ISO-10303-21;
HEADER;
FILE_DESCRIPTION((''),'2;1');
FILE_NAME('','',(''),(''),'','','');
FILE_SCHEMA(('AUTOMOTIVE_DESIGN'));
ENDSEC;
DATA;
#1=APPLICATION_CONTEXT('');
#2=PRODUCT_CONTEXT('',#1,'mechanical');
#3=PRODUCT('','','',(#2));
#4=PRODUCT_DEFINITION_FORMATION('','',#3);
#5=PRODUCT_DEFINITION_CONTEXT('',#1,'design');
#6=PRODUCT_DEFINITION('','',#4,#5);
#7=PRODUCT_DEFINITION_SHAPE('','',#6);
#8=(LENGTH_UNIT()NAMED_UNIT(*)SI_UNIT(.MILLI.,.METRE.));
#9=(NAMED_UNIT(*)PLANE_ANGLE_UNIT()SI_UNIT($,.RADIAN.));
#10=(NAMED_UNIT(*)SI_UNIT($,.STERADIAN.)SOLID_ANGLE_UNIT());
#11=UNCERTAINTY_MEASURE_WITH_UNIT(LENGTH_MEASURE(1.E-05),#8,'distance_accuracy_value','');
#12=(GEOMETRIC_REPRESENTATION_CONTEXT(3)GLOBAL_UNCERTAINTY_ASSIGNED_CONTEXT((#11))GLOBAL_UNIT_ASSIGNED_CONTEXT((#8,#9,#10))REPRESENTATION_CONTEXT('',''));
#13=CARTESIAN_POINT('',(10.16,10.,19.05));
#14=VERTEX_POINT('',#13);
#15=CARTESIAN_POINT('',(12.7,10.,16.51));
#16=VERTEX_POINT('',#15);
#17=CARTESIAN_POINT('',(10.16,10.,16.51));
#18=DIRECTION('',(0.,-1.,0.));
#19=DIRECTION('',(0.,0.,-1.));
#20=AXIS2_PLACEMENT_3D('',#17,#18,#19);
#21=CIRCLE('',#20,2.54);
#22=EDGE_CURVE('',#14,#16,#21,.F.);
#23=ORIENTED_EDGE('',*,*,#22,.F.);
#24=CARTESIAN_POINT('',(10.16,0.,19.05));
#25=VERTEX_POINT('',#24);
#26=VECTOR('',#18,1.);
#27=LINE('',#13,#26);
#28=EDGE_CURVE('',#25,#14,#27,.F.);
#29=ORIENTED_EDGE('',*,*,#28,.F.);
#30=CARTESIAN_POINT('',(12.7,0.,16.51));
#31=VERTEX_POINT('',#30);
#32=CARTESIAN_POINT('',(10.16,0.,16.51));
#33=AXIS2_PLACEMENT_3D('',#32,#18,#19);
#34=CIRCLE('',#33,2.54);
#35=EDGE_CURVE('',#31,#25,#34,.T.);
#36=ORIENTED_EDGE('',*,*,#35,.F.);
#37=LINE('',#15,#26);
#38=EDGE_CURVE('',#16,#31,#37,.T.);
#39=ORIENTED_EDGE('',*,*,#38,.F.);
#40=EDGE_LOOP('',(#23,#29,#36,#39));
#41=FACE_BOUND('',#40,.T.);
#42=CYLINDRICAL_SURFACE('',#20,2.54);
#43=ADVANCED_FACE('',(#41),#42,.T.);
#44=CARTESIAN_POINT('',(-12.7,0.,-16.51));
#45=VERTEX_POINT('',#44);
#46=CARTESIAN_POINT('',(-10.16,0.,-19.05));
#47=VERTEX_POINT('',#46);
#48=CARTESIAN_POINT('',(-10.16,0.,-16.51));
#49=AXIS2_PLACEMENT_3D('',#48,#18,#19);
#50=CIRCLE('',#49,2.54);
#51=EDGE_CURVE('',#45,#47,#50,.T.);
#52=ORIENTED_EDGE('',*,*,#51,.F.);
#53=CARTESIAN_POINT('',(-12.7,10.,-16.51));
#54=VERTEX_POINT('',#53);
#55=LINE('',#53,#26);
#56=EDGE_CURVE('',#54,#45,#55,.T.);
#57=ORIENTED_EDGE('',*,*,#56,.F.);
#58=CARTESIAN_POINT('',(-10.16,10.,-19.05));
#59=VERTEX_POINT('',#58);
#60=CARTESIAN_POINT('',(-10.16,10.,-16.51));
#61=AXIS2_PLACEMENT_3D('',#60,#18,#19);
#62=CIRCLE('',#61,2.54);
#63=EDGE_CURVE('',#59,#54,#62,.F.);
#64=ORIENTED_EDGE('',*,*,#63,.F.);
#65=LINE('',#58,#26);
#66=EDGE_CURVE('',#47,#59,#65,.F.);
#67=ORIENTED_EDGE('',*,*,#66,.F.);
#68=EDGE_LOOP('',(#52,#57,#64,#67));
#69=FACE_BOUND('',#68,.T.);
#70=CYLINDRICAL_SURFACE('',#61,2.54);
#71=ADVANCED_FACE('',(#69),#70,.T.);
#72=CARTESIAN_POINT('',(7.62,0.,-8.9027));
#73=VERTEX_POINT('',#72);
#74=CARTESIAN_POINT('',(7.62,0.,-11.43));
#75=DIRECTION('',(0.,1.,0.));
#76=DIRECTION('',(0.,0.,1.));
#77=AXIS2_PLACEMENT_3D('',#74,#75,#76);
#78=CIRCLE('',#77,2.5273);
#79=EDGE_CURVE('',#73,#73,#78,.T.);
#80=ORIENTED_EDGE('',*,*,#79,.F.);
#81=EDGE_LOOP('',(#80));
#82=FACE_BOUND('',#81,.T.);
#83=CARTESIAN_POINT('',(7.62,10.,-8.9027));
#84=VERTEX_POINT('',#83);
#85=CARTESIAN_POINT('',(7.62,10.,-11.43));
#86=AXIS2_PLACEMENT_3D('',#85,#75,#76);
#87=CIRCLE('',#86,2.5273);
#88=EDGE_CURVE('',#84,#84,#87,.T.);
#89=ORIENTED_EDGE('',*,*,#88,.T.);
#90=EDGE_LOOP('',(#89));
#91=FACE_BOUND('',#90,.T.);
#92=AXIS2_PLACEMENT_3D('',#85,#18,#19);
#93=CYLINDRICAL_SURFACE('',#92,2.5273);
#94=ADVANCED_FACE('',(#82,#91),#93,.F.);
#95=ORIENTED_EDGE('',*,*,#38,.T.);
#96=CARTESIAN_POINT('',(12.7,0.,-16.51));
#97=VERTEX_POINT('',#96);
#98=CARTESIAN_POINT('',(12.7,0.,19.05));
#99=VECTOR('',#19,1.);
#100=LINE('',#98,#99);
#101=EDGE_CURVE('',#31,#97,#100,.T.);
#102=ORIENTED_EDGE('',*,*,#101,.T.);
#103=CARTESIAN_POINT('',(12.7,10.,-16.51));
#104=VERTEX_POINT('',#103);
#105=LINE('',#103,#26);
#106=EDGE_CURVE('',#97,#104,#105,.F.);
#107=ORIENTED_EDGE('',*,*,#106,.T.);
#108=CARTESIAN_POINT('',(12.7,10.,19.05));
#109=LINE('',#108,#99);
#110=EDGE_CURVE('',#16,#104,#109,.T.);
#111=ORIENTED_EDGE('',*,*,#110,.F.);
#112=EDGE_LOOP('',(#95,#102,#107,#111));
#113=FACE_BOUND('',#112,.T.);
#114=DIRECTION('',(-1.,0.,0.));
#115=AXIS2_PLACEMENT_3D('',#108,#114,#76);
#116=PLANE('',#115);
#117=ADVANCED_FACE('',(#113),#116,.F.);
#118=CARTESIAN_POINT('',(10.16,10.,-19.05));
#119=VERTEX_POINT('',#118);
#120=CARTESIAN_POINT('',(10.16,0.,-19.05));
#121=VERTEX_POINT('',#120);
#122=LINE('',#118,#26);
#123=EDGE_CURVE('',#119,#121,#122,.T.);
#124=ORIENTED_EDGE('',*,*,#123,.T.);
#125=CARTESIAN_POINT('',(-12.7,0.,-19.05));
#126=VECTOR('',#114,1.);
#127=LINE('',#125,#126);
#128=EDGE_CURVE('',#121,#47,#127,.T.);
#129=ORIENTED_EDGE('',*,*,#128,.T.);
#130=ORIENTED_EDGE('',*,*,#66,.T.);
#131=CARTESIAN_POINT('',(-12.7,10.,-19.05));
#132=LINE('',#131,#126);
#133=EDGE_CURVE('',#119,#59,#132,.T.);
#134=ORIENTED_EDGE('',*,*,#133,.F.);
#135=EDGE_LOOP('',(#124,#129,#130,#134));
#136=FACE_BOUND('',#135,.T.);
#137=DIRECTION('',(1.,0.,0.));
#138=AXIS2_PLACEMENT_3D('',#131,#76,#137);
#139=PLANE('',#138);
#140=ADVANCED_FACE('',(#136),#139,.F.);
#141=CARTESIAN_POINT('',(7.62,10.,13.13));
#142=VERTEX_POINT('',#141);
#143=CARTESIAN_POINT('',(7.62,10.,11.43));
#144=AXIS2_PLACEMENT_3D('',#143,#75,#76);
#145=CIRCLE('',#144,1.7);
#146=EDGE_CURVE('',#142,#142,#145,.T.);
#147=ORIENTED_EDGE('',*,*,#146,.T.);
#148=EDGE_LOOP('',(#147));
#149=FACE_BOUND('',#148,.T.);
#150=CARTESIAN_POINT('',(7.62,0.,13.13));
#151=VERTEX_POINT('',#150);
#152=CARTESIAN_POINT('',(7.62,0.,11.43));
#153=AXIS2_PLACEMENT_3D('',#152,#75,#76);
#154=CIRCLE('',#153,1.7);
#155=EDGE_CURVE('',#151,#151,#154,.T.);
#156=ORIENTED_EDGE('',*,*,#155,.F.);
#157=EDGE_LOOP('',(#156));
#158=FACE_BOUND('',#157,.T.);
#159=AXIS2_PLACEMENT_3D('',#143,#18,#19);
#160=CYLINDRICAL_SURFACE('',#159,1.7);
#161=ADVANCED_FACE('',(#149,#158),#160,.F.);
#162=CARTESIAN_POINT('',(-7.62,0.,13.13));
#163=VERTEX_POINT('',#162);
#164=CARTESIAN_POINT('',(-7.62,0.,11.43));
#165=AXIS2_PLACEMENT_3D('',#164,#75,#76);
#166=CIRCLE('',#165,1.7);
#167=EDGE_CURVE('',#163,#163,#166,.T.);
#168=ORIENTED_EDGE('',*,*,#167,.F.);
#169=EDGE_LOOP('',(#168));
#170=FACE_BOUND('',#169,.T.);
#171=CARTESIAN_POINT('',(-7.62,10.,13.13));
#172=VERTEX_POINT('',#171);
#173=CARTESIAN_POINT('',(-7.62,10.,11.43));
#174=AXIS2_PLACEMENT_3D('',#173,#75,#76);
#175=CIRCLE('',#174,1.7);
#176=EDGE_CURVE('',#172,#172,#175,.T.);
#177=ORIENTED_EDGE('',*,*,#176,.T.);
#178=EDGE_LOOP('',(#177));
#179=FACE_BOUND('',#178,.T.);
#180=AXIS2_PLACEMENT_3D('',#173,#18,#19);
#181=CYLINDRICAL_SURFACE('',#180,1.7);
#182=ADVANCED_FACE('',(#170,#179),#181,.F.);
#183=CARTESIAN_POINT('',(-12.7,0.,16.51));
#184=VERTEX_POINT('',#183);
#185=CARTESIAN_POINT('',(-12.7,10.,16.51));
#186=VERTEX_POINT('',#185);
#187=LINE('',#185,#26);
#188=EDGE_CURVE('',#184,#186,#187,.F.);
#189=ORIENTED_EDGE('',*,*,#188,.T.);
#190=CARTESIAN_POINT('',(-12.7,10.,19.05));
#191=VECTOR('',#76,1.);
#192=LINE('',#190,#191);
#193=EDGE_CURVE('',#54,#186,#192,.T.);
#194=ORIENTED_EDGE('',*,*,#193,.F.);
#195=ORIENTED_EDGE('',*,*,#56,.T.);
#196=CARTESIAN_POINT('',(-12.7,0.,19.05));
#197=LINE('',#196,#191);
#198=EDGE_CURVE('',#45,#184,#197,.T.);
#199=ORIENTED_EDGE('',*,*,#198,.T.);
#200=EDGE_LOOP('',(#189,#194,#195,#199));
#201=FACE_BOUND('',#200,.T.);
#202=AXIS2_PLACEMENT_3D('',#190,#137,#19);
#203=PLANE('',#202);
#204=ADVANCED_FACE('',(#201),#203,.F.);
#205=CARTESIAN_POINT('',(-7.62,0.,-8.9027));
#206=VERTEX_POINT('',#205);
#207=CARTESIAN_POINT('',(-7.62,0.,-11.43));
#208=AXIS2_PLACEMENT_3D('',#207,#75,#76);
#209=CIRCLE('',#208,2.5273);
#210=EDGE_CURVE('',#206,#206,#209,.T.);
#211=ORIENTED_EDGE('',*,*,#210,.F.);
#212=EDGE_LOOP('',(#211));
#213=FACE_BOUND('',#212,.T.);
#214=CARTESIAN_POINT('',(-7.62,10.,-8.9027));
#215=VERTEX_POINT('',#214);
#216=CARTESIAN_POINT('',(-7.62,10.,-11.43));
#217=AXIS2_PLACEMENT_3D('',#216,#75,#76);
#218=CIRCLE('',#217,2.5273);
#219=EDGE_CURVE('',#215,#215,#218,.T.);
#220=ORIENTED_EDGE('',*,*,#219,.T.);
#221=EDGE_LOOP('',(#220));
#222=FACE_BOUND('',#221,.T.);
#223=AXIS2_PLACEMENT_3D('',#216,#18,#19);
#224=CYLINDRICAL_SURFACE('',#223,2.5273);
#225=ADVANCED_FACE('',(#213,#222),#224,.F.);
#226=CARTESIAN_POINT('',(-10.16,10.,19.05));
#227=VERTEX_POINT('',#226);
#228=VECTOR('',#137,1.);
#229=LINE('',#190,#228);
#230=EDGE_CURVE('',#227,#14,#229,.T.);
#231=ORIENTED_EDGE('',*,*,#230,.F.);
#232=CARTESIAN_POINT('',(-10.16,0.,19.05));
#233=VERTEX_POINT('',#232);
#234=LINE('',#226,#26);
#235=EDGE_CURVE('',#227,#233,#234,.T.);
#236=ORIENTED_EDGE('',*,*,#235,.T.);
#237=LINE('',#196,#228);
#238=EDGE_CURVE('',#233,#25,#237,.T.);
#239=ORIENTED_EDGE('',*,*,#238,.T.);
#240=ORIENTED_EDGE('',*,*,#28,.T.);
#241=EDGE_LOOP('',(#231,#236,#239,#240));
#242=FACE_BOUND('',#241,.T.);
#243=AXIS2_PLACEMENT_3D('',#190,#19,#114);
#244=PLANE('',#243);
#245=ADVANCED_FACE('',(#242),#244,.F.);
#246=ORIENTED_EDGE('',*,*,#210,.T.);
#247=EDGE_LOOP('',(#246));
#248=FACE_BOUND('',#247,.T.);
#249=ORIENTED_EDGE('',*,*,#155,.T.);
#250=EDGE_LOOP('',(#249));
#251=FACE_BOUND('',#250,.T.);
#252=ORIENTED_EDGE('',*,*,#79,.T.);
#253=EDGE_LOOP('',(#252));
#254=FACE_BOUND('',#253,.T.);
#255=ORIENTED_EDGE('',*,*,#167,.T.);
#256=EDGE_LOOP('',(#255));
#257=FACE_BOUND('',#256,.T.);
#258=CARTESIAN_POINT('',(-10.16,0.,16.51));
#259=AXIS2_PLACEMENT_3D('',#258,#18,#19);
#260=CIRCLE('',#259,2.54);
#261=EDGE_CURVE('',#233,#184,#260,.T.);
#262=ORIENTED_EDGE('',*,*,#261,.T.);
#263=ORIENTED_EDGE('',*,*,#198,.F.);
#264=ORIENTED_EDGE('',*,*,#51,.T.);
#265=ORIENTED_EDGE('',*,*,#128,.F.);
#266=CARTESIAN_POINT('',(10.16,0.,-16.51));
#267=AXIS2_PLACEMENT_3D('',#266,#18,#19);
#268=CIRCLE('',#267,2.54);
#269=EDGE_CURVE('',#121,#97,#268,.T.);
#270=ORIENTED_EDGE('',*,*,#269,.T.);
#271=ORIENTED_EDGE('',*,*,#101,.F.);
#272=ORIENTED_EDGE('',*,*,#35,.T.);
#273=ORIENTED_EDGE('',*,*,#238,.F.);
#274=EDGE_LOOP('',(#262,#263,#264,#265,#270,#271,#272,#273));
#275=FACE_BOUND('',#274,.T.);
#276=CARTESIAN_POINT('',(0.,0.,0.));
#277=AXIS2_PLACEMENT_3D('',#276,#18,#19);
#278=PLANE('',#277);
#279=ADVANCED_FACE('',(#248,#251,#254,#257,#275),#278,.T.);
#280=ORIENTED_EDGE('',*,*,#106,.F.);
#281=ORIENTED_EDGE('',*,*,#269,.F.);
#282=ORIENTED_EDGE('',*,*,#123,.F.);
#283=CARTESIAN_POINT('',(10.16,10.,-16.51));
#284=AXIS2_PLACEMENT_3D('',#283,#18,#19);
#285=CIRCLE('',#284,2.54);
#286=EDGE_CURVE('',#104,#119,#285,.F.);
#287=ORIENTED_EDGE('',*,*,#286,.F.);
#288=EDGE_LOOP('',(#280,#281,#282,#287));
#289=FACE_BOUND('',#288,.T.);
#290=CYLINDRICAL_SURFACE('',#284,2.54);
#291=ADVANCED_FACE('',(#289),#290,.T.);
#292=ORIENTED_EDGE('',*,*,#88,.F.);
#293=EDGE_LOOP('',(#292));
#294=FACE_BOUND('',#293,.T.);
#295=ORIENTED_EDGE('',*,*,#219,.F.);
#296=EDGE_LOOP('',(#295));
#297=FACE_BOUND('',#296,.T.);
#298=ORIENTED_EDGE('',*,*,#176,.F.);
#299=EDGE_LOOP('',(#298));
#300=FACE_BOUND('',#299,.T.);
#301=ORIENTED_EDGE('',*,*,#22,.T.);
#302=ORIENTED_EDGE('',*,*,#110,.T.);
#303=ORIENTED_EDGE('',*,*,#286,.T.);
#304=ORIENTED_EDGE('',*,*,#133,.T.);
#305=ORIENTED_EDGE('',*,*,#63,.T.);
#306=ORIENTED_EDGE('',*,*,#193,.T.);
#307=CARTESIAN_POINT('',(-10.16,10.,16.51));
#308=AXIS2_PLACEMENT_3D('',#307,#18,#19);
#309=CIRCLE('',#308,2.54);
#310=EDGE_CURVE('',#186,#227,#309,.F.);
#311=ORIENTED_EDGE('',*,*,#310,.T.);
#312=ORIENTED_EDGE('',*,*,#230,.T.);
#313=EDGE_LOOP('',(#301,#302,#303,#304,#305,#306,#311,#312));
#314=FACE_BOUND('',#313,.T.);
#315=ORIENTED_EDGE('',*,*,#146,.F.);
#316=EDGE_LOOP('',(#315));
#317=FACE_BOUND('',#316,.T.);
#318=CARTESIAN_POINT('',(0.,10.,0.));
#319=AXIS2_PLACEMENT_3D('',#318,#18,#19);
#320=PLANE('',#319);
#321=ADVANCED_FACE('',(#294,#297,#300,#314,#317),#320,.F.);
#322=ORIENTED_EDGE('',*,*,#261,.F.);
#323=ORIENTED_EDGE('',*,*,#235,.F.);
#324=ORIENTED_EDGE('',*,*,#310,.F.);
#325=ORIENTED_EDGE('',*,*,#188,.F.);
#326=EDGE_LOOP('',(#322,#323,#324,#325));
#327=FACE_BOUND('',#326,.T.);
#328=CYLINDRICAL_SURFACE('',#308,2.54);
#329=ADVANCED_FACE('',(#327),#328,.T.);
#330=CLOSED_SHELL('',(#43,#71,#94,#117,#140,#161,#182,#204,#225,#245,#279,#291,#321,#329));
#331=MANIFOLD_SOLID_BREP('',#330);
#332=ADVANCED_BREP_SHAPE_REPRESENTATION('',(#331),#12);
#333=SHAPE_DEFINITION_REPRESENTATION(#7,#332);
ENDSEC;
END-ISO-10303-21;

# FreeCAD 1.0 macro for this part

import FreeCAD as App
import Part
import Sketcher
Q = App.Units.Quantity


def edges_at(feature, points):
    """Names of the edges that pass closest to the given points."""
    edges = feature.Shape.Edges
    near = lambda p: min(range(len(edges)), key=lambda i: edges[i].distToShape(Part.Vertex(*p))[0])
    return sorted({f"Edge{near(p) + 1}" for p in points})


def add_polygon(sketch, points):
    """Adds a closed chain of lines whose ends are joined by coincident constraints."""
    first, n = sketch.GeometryCount, len(points)
    for a, b in zip(points, points[1:] + points[:1]):
        sketch.addGeometry(Part.LineSegment(App.Vector(*a, 0), App.Vector(*b, 0)), False)
    for i in range(n):
        sketch.addConstraint(Sketcher.Constraint("Coincident", first + i, 2, first + (i + 1) % n, 1))

doc = App.newDocument("Part")
body = doc.addObject("PartDesign::Body", "Body")

# Sketch on XZ plane
sketch1 = body.newObject("Sketcher::SketchObject", "Sketch")
sketch1.AttachmentSupport = (doc.getObject("XZ_Plane"), [""])
sketch1.MapMode = "FlatFace"
add_polygon(sketch1, [(-12.7, -19.05), (-12.7, 19.05), (12.7, 19.05), (12.7, -19.05)])  # lines 0-3
sketch1.addGeometry(Part.Circle(App.Vector(-7.62, 11.43, 0), App.Vector(0, 0, 1), 1.7), False)  # 4
sketch1.addGeometry(Part.Circle(App.Vector(7.62, 11.43, 0), App.Vector(0, 0, 1), 1.7), False)  # 5
sketch1.addGeometry(Part.Circle(App.Vector(-7.62, -11.43, 0), App.Vector(0, 0, 1), 2.5273), False)  # 6
sketch1.addGeometry(Part.Circle(App.Vector(7.62, -11.43, 0), App.Vector(0, 0, 1), 2.5273), False)  # 7
sketch1.addConstraint([
    Sketcher.Constraint("Vertical", 0),
    Sketcher.Constraint("Horizontal", 1),
    Sketcher.Constraint("Vertical", 2),
    Sketcher.Constraint("Horizontal", 3),
    Sketcher.Constraint("Equal", 4, 5),
    Sketcher.Constraint("Equal", 6, 7),
    Sketcher.Constraint("Symmetric", 5, 3, 6, 3, -1, 1),
    Sketcher.Constraint("Symmetric", 4, 3, 7, 3, -1, 1),
    Sketcher.Constraint("Symmetric", 0, 2, 2, 2, -1, 1),
    Sketcher.Constraint("Symmetric", 4, 3, 5, 3, -2),
    Sketcher.Constraint("DistanceX", 1, 1, 1, 2, Q("1 in")),
    Sketcher.Constraint("Diameter", 6, Q("0.199 in")),
    Sketcher.Constraint("DistanceY", 0, 1, 0, 2, Q("1.5 in")),
    Sketcher.Constraint("DistanceX", 4, 3, -1, 1, Q("0.3 in")),
    Sketcher.Constraint("DistanceY", 6, 3, 4, 3, Q("0.9 in")),
    Sketcher.Constraint("Diameter", 4, 3.4),
])
pad1 = body.newObject("PartDesign::Pad", "Pad")
pad1.Profile = sketch1
pad1.Length = 10
pad1.Reversed = True
doc.recompute()

fillet = body.newObject("PartDesign::Fillet", "Fillet")
fillet.Base = (pad1, edges_at(pad1, [
    (12.7, 5, 19.05),
    (-12.7, 5, 19.05),
    (-12.7, 5, -19.05),
    (12.7, 5, -19.05),
]))
fillet.Radius = Q("0.1 in")

doc.recompute()
